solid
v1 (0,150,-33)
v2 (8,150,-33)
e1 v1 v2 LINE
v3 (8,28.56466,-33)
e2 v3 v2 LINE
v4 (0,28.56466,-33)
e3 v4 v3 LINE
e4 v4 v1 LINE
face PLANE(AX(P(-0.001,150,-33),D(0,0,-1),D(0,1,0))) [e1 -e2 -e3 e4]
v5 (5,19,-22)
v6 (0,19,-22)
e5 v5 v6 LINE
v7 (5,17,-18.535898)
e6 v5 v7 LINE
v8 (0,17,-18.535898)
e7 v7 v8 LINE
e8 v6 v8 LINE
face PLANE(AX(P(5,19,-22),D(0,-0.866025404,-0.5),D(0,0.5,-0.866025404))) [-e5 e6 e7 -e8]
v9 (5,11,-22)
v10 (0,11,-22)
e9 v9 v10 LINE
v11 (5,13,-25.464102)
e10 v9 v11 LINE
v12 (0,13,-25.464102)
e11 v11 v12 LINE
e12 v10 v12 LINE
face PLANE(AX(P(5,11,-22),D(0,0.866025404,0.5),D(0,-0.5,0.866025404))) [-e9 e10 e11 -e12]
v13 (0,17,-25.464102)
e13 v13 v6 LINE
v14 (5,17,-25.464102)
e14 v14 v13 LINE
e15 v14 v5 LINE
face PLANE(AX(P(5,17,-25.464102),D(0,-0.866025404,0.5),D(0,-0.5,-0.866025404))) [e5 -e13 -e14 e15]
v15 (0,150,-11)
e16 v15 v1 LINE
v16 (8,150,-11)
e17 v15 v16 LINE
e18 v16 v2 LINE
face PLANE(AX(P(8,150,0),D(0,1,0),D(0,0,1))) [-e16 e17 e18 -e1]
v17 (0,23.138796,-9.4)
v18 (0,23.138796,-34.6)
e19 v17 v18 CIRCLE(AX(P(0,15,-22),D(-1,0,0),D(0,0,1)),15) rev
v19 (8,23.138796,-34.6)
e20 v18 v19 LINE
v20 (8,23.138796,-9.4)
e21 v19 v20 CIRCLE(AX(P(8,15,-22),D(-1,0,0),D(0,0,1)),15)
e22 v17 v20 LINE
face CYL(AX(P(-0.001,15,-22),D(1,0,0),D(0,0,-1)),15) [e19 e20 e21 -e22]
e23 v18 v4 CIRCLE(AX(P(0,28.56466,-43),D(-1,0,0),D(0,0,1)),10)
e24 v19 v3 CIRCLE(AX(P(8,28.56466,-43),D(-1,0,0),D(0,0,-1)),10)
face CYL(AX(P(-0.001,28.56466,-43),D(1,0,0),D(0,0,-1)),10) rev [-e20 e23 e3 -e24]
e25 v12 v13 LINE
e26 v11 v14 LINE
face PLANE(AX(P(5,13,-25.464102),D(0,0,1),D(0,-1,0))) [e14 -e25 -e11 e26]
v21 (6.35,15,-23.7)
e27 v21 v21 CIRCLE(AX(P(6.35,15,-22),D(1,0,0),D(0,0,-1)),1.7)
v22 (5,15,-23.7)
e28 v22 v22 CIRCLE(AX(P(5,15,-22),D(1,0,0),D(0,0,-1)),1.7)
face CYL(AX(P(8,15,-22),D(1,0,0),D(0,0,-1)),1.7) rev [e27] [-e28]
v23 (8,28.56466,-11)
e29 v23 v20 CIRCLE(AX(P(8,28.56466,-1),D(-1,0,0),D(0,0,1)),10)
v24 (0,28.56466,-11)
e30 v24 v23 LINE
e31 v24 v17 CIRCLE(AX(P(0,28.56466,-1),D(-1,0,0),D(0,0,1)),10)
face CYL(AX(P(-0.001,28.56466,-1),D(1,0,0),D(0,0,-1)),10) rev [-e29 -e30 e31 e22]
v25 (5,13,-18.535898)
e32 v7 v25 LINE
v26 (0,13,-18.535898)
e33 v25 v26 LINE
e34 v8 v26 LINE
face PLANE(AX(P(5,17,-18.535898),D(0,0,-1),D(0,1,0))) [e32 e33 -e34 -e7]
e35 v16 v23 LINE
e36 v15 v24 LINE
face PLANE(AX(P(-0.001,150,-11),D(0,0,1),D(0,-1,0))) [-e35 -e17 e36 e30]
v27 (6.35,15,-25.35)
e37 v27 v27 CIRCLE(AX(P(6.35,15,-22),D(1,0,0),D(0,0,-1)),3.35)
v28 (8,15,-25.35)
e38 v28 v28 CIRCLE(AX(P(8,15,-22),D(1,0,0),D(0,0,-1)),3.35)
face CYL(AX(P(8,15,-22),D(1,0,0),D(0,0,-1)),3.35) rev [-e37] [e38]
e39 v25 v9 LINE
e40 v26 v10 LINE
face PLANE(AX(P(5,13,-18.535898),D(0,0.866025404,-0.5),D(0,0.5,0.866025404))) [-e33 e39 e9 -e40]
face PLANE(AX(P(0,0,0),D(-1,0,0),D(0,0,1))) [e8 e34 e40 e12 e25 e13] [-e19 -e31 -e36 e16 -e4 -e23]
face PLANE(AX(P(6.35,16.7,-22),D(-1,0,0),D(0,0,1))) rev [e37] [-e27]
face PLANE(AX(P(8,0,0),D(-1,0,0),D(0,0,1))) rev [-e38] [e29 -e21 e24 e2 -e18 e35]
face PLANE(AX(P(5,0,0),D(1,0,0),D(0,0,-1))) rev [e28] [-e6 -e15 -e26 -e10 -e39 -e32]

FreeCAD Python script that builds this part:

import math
import FreeCAD as App
import Part
import Sketcher
from FreeCAD import Vector
Q = App.Units.Quantity

doc = App.newDocument("Part")
params = doc.addObject("Spreadsheet::Sheet", "Params")
for row, (alias, value) in enumerate([
    ("sketch1_width", "150 mm"),
    ("sketch1_height", "44 mm"),
    ("pad1_length", "8 mm"),
    ("sketch2_width", "4 mm"),
    ("sketch2_length", "4 mm"),
    ("pocket1_length", "5 mm"),
    ("sketch3_radius", "10 mm"),
    ("sketch3_radius2", "15 mm"),
    ("sketch3_height", "22 mm"),
    ("pocket2_length", "8 mm"),
    ("sketch4_diameter", "3.4 mm"),
    ("hole_diameter", "3.4 mm"),
    ("hole_cbore_diameter", "6.7 mm"),
    ("hole_cbore_depth", "1.65 mm"),
], start=1):
    params.set(f"A{row}", alias)
    params.set(f"B{row}", "=" + value)
    params.setAlias(f"B{row}", alias)

body = doc.addObject("PartDesign::Body", "Body")

# Sketch on YZ plane
sketch1 = body.newObject("Sketcher::SketchObject", "Sketch")
sketch1.AttachmentSupport = (doc.getObject("YZ_Plane"), [""])
sketch1.MapMode = "FlatFace"
sketch1.addGeometry(Part.LineSegment(Vector(150, 0, 0), Vector(0, 0, 0)), False)
sketch1.addGeometry(Part.LineSegment(Vector(0, 0, 0), Vector(0, -44, 0)), False)
sketch1.addGeometry(Part.LineSegment(Vector(0, -44, 0), Vector(150, -44, 0)), False)
sketch1.addGeometry(Part.LineSegment(Vector(150, -44, 0), Vector(150, 0, 0)), False)
sketch1.addConstraint(Sketcher.Constraint("Coincident", 0, 2, 1, 1))
sketch1.addConstraint(Sketcher.Constraint("Coincident", 1, 2, 2, 1))
sketch1.addConstraint(Sketcher.Constraint("Coincident", 2, 2, 3, 1))
sketch1.addConstraint(Sketcher.Constraint("Coincident", 3, 2, 0, 1))
sketch1.addConstraint(Sketcher.Constraint("Horizontal", 0))
sketch1.addConstraint(Sketcher.Constraint("Vertical", 1))
sketch1.addConstraint(Sketcher.Constraint("Horizontal", 2))
sketch1.addConstraint(Sketcher.Constraint("Vertical", 3))
sketch1.addConstraint(Sketcher.Constraint("Coincident", 0, 2, -1, 1))
sketch1.addConstraint(Sketcher.Constraint("DistanceX", 0, 2, 0, 1, 150.0))
sketch1.addConstraint(Sketcher.Constraint("DistanceY", 1, 2, 1, 1, 44.0))
sketch1.setExpression("Constraints[9]", "Params.sketch1_width")
sketch1.setExpression("Constraints[10]", "Params.sketch1_height")
pad1 = body.newObject("PartDesign::Pad", "Pad")
pad1.Profile = sketch1
pad1.setExpression("Length", "Params.pad1_length")

# Sketch on YZ plane
sketch2 = body.newObject("Sketcher::SketchObject", "Sketch001")
sketch2.AttachmentSupport = (doc.getObject("YZ_Plane"), [""])
sketch2.MapMode = "FlatFace"
sketch2.addGeometry(Part.LineSegment(Vector(19, -22, 0), Vector(17, -18.5, 0)), False)
sketch2.addGeometry(Part.LineSegment(Vector(17, -18.5, 0), Vector(13, -18.5, 0)), False)
sketch2.addGeometry(Part.LineSegment(Vector(13, -18.5, 0), Vector(11, -22, 0)), False)
sketch2.addGeometry(Part.LineSegment(Vector(11, -22, 0), Vector(13, -25.5, 0)), False)
sketch2.addGeometry(Part.LineSegment(Vector(13, -25.5, 0), Vector(17, -25.5, 0)), False)
sketch2.addGeometry(Part.LineSegment(Vector(17, -25.5, 0), Vector(19, -22, 0)), False)
sketch2.addConstraint(Sketcher.Constraint("Coincident", 0, 2, 1, 1))
sketch2.addConstraint(Sketcher.Constraint("Coincident", 1, 2, 2, 1))
sketch2.addConstraint(Sketcher.Constraint("Coincident", 2, 2, 3, 1))
sketch2.addConstraint(Sketcher.Constraint("Coincident", 3, 2, 4, 1))
sketch2.addConstraint(Sketcher.Constraint("Coincident", 4, 2, 5, 1))
sketch2.addConstraint(Sketcher.Constraint("Coincident", 5, 2, 0, 1))
sketch2.addConstraint(Sketcher.Constraint("Horizontal", 1))
sketch2.addConstraint(Sketcher.Constraint("Horizontal", 4))
sketch2.addConstraint(Sketcher.Constraint("Parallel", 0, 3))
sketch2.addConstraint(Sketcher.Constraint("Parallel", 2, 5))
sketch2.addConstraint(Sketcher.Constraint("Horizontal", 2, 2, 5, 2))
sketch2.addConstraint(Sketcher.Constraint("Vertical", 1, 2, 3, 2))
sketch2.addConstraint(Sketcher.Constraint("Vertical", 0, 2, 4, 2))
sketch2.addConstraint(Sketcher.Constraint("DistanceX", 1, 2, 1, 1, 4.0))
sketch2.addConstraint(Sketcher.Constraint("Angle", 0, Q("120 deg")))
sketch2.addConstraint(Sketcher.Constraint("Distance", 0, 4.0))
sketch2.addConstraint(Sketcher.Constraint("DistanceX", -1, 1, 0, 2, 17.0))
sketch2.addConstraint(Sketcher.Constraint("DistanceY", 2, 2, -1, 1, 22.0))
sketch2.setExpression("Constraints[13]", "Params.sketch2_width")
sketch2.setExpression("Constraints[15]", "Params.sketch2_length")
pocket1 = body.newObject("PartDesign::Pocket", "Pocket")
pocket1.Profile = sketch2
pocket1.setExpression("Length", "Params.pocket1_length")
pocket1.Reversed = True

# Sketch on YZ plane
sketch3 = body.newObject("Sketcher::SketchObject", "Sketch002")
sketch3.AttachmentSupport = (doc.getObject("YZ_Plane"), [""])
sketch3.MapMode = "FlatFace"
sketch3.AttachmentOffset = App.Placement(Vector(0, 0, 8), App.Rotation())
sketch3.addGeometry(Part.LineSegment(Vector(167, 17, 0), Vector(-17, 17, 0)), False)
sketch3.addGeometry(Part.LineSegment(Vector(-17, 17, 0), Vector(-17, -61, 0)), False)
sketch3.addGeometry(Part.LineSegment(Vector(-17, -61, 0), Vector(167, -61, 0)), False)
sketch3.addGeometry(Part.LineSegment(Vector(167, -61, 0), Vector(167, 17, 0)), False)
sketch3.addGeometry(Part.LineSegment(Vector(29, -11, 0), Vector(150, -11, 0)), False)
sketch3.addGeometry(Part.LineSegment(Vector(150, -11, 0), Vector(150, -33, 0)), False)
sketch3.addGeometry(Part.LineSegment(Vector(150, -33, 0), Vector(29, -33, 0)), False)
sketch3.addGeometry(Part.ArcOfCircle(Part.Circle(Vector(29, -43, 0), Vector(0, 0, 1), 10), math.radians(90), math.radians(123)), False)
sketch3.addGeometry(Part.ArcOfCircle(Part.Circle(Vector(15, -22, 0), Vector(0, 0, 1), 15), math.radians(57), math.radians(303)), False)
sketch3.addGeometry(Part.ArcOfCircle(Part.Circle(Vector(29, -1, 0), Vector(0, 0, 1), 10), math.radians(-123), math.radians(-90)), False)
sketch3.addConstraint(Sketcher.Constraint("Coincident", 0, 2, 1, 1))
sketch3.addConstraint(Sketcher.Constraint("Coincident", 1, 2, 2, 1))
sketch3.addConstraint(Sketcher.Constraint("Coincident", 2, 2, 3, 1))
sketch3.addConstraint(Sketcher.Constraint("Coincident", 3, 2, 0, 1))
sketch3.addConstraint(Sketcher.Constraint("Coincident", 4, 2, 5, 1))
sketch3.addConstraint(Sketcher.Constraint("Coincident", 5, 2, 6, 1))
sketch3.addConstraint(Sketcher.Constraint("Tangent", 6, 2, 7, 1))
sketch3.addConstraint(Sketcher.Constraint("Tangent", 7, 2, 8, 2))
sketch3.addConstraint(Sketcher.Constraint("Tangent", 8, 1, 9, 1))
sketch3.addConstraint(Sketcher.Constraint("Tangent", 9, 2, 4, 1))
sketch3.addConstraint(Sketcher.Constraint("Horizontal", 0))
sketch3.addConstraint(Sketcher.Constraint("Vertical", 1))
sketch3.addConstraint(Sketcher.Constraint("Horizontal", 2))
sketch3.addConstraint(Sketcher.Constraint("Vertical", 3))
sketch3.addConstraint(Sketcher.Constraint("Horizontal", 4))
sketch3.addConstraint(Sketcher.Constraint("Vertical", 5))
sketch3.addConstraint(Sketcher.Constraint("Horizontal", 6))
sketch3.addConstraint(Sketcher.Constraint("Equal", 7, 9))
sketch3.addConstraint(Sketcher.Constraint("Vertical", 7, 3, 9, 3))
sketch3.addConstraint(Sketcher.Constraint("Radius", 7, 10.0))
sketch3.addConstraint(Sketcher.Constraint("Radius", 8, 15.0))
sketch3.addConstraint(Sketcher.Constraint("DistanceY", 5, 2, 5, 1, 22.0))
sketch3.addConstraint(Sketcher.Constraint("DistanceY", 7, 3, -1, 1, 43.0))
sketch3.addConstraint(Sketcher.Constraint("DistanceX", -1, 1, 8, 3, 15.0))
sketch3.addConstraint(Sketcher.Constraint("DistanceX", -1, 1, 4, 2, 150.0))
sketch3.addConstraint(Sketcher.Constraint("DistanceX", 0, 2, 0, 1, 183.304))
sketch3.addConstraint(Sketcher.Constraint("DistanceY", 1, 2, 1, 1, 77.304))
sketch3.addConstraint(Sketcher.Constraint("DistanceX", 0, 2, -1, 1, 16.652))
sketch3.addConstraint(Sketcher.Constraint("DistanceY", -1, 1, 0, 2, 16.652))
sketch3.setExpression("Constraints[19]", "Params.sketch3_radius")
sketch3.setExpression("Constraints[20]", "Params.sketch3_radius2")
sketch3.setExpression("Constraints[21]", "Params.sketch3_height")
pocket2 = body.newObject("PartDesign::Pocket", "Pocket001")
pocket2.Profile = sketch3
pocket2.setExpression("Length", "Params.pocket2_length")

# Sketch on YZ plane
sketch4 = body.newObject("Sketcher::SketchObject", "Sketch003")
sketch4.AttachmentSupport = (doc.getObject("YZ_Plane"), [""])
sketch4.MapMode = "FlatFace"
sketch4.AttachmentOffset = App.Placement(Vector(0, 0, 8), App.Rotation())
sketch4.addGeometry(Part.Circle(Vector(15, -22, 0), Vector(0, 0, 1), 1.7), False)
sketch4.addConstraint(Sketcher.Constraint("Diameter", 0, 3.4))
sketch4.addConstraint(Sketcher.Constraint("DistanceX", -1, 1, 0, 3, 15.0))
sketch4.addConstraint(Sketcher.Constraint("DistanceY", 0, 3, -1, 1, 22.0))
sketch4.setExpression("Constraints[0]", "Params.sketch4_diameter")
doc.recompute()
hole = body.newObject("PartDesign::Hole", "Hole")
hole.Profile = sketch4
hole.ThreadType = "None"
hole.setExpression("Diameter", "Params.hole_diameter")
hole.DepthType = "ThroughAll"
hole.HoleCutType = "Counterbore"
hole.setExpression("HoleCutDiameter", "Params.hole_cbore_diameter")
hole.setExpression("HoleCutDepth", "Params.hole_cbore_depth")

doc.recompute()
